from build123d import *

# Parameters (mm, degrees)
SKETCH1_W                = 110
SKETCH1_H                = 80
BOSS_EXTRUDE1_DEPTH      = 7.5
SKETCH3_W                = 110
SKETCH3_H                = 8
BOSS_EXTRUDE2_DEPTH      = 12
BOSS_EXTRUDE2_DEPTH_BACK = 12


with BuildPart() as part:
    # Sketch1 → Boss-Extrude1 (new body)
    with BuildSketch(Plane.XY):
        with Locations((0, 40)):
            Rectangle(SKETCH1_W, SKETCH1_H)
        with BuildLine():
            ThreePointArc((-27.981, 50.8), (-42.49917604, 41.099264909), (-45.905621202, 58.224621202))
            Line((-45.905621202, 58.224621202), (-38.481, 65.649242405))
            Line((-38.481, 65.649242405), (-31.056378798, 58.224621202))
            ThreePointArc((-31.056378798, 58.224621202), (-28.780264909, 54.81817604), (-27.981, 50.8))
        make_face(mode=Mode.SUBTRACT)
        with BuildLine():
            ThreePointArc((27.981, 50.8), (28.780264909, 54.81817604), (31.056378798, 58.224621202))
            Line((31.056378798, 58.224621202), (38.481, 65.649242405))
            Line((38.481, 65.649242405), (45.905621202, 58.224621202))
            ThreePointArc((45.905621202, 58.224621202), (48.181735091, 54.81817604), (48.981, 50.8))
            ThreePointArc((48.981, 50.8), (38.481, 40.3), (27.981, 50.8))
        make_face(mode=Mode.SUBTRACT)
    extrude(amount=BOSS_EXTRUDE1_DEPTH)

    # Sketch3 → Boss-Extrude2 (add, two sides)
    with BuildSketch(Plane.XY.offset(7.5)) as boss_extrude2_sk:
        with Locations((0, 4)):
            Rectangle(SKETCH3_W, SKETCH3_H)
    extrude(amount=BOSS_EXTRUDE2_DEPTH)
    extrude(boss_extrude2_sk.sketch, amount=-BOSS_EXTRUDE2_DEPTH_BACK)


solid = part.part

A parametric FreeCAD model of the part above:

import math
import FreeCAD as App
import Part
import Sketcher

V = App.Vector

doc = App.newDocument("Part")
params = doc.addObject("Spreadsheet::Sheet", "Params")
for row, (alias, value) in enumerate([
    ("sketch1_radius", "10.5 mm"),
    ("sketch1_width", "110 mm"),
    ("sketch1_height", "80 mm"),
    ("pad1_length", "7.5 mm"),
    ("sketch2_width", "110 mm"),
    ("sketch2_height", "8 mm"),
    ("pad2_length", "12 mm"),
    ("pad2_length2", "12 mm"),
], start=1):
    params.set(f"A{row}", alias)
    params.set(f"B{row}", "=" + value)
    params.setAlias(f"B{row}", alias)

body = doc.addObject("PartDesign::Body", "Body")

# Sketch on XY plane
sketch1 = body.newObject("Sketcher::SketchObject", "Sketch")
sketch1.AttachmentSupport = (doc.getObject("XY_Plane"), [""])
sketch1.MapMode = "FlatFace"
sketch1.addGeometry([
    Part.LineSegment(V(-55, 80, 0), V(-55, 0, 0)),  # 0
    Part.LineSegment(V(-55, 0, 0), V(55, 0, 0)),  # 1
    Part.LineSegment(V(55, 0, 0), V(55, 80, 0)),  # 2
    Part.LineSegment(V(55, 80, 0), V(-55, 80, 0)),  # 3
    Part.ArcOfCircle(Part.Circle(V(-38, 51, 0), V(0, 0, 1), 10), math.radians(0), math.radians(45)),  # 4
    Part.ArcOfCircle(Part.Circle(V(-38, 51, 0), V(0, 0, 1), 10), math.radians(135), math.radians(360)),  # 5
    Part.LineSegment(V(-46, 58, 0), V(-38, 66, 0)),  # 6
    Part.LineSegment(V(-38, 66, 0), V(-31, 58, 0)),  # 7
    Part.ArcOfCircle(Part.Circle(V(38, 51, 0), V(0, 0, 1), 10), math.radians(180), math.radians(360)),  # 8
    Part.ArcOfCircle(Part.Circle(V(38, 51, 0), V(0, 0, 1), 10), math.radians(135), math.radians(180)),  # 9
    Part.LineSegment(V(31, 58, 0), V(38, 66, 0)),  # 10
    Part.LineSegment(V(38, 66, 0), V(46, 58, 0)),  # 11
    Part.ArcOfCircle(Part.Circle(V(38, 51, 0), V(0, 0, 1), 10), math.radians(0), math.radians(45)),  # 12
], False)
sketch1.addConstraint([
    Sketcher.Constraint("Coincident", 0, 2, 1, 1),
    Sketcher.Constraint("Coincident", 1, 2, 2, 1),
    Sketcher.Constraint("Coincident", 2, 2, 3, 1),
    Sketcher.Constraint("Coincident", 3, 2, 0, 1),
    Sketcher.Constraint("Tangent", 4, 1, 5, 2),
    Sketcher.Constraint("Tangent", 5, 1, 6, 1),
    Sketcher.Constraint("Coincident", 6, 2, 7, 1),
    Sketcher.Constraint("Tangent", 7, 2, 4, 2),
    Sketcher.Constraint("Tangent", 8, 1, 9, 2),
    Sketcher.Constraint("Tangent", 9, 1, 10, 1),
    Sketcher.Constraint("Coincident", 10, 2, 11, 1),
    Sketcher.Constraint("Tangent", 11, 2, 12, 2),
    Sketcher.Constraint("Tangent", 12, 1, 8, 2),
    Sketcher.Constraint("Vertical", 0),
    Sketcher.Constraint("Horizontal", 1),
    Sketcher.Constraint("Vertical", 2),
    Sketcher.Constraint("Horizontal", 3),
    Sketcher.Constraint("Equal", 4, 5),
    Sketcher.Constraint("Equal", 5, 8),
    Sketcher.Constraint("Equal", 8, 9),
    Sketcher.Constraint("Equal", 9, 12),
    Sketcher.Constraint("Symmetric", 0, 2, 1, 2, -1, 1),
    Sketcher.Constraint("Symmetric", 4, 3, 8, 3, -2),
    Sketcher.Constraint("Symmetric", 6, 2, 10, 2, -2),
    Sketcher.Constraint("Perpendicular", 6, 7),
    Sketcher.Constraint("Perpendicular", 7, 10),
    Sketcher.Constraint("Horizontal", 12, 3, 4, 1),
    Sketcher.Constraint("Horizontal", 4, 1, 8, 1),
    Sketcher.Constraint("Horizontal", 8, 1, 12, 1),
    Sketcher.Constraint("Radius", 4, 10.5),
    Sketcher.Constraint("DistanceX", 1, 1, 1, 2, 110.0),
    Sketcher.Constraint("DistanceY", 0, 2, 0, 1, 80.0),
    Sketcher.Constraint("DistanceY", -1, 1, 4, 3, 50.8),
    Sketcher.Constraint("DistanceX", 4, 3, -1, 1, 38.481),
])
sketch1.setExpression("Constraints[29]", "Params.sketch1_radius")
sketch1.setExpression("Constraints[30]", "Params.sketch1_width")
sketch1.setExpression("Constraints[31]", "Params.sketch1_height")
pad1 = body.newObject("PartDesign::Pad", "Pad")
pad1.Profile = sketch1
pad1.setExpression("Length", "Params.pad1_length")

# Sketch on XY plane
sketch2 = body.newObject("Sketcher::SketchObject", "Sketch001")
sketch2.AttachmentSupport = (doc.getObject("XY_Plane"), [""])
sketch2.MapMode = "FlatFace"
sketch2.AttachmentOffset = App.Placement(V(0, 0, 7.5), App.Rotation())
sketch2.addGeometry([
    Part.LineSegment(V(-55, 8, 0), V(-55, 0, 0)),
    Part.LineSegment(V(-55, 0, 0), V(55, 0, 0)),
    Part.LineSegment(V(55, 0, 0), V(55, 8, 0)),
    Part.LineSegment(V(55, 8, 0), V(-55, 8, 0)),
], False)
sketch2.addConstraint([
    Sketcher.Constraint("Coincident", 0, 2, 1, 1),
    Sketcher.Constraint("Coincident", 1, 2, 2, 1),
    Sketcher.Constraint("Coincident", 2, 2, 3, 1),
    Sketcher.Constraint("Coincident", 3, 2, 0, 1),
    Sketcher.Constraint("Vertical", 0),
    Sketcher.Constraint("Horizontal", 1),
    Sketcher.Constraint("Vertical", 2),
    Sketcher.Constraint("Horizontal", 3),
    Sketcher.Constraint("Symmetric", 0, 2, 1, 2, -1, 1),
    Sketcher.Constraint("DistanceX", 1, 1, 1, 2, 110.0),
    Sketcher.Constraint("DistanceY", 0, 2, 0, 1, 8.0),
])
sketch2.setExpression("Constraints[9]", "Params.sketch2_width")
sketch2.setExpression("Constraints[10]", "Params.sketch2_height")
pad2 = body.newObject("PartDesign::Pad", "Pad001")
pad2.Profile = sketch2
pad2.Type = "TwoLengths"
pad2.setExpression("Length", "Params.pad2_length")
pad2.setExpression("Length2", "Params.pad2_length2")

doc.recompute()
